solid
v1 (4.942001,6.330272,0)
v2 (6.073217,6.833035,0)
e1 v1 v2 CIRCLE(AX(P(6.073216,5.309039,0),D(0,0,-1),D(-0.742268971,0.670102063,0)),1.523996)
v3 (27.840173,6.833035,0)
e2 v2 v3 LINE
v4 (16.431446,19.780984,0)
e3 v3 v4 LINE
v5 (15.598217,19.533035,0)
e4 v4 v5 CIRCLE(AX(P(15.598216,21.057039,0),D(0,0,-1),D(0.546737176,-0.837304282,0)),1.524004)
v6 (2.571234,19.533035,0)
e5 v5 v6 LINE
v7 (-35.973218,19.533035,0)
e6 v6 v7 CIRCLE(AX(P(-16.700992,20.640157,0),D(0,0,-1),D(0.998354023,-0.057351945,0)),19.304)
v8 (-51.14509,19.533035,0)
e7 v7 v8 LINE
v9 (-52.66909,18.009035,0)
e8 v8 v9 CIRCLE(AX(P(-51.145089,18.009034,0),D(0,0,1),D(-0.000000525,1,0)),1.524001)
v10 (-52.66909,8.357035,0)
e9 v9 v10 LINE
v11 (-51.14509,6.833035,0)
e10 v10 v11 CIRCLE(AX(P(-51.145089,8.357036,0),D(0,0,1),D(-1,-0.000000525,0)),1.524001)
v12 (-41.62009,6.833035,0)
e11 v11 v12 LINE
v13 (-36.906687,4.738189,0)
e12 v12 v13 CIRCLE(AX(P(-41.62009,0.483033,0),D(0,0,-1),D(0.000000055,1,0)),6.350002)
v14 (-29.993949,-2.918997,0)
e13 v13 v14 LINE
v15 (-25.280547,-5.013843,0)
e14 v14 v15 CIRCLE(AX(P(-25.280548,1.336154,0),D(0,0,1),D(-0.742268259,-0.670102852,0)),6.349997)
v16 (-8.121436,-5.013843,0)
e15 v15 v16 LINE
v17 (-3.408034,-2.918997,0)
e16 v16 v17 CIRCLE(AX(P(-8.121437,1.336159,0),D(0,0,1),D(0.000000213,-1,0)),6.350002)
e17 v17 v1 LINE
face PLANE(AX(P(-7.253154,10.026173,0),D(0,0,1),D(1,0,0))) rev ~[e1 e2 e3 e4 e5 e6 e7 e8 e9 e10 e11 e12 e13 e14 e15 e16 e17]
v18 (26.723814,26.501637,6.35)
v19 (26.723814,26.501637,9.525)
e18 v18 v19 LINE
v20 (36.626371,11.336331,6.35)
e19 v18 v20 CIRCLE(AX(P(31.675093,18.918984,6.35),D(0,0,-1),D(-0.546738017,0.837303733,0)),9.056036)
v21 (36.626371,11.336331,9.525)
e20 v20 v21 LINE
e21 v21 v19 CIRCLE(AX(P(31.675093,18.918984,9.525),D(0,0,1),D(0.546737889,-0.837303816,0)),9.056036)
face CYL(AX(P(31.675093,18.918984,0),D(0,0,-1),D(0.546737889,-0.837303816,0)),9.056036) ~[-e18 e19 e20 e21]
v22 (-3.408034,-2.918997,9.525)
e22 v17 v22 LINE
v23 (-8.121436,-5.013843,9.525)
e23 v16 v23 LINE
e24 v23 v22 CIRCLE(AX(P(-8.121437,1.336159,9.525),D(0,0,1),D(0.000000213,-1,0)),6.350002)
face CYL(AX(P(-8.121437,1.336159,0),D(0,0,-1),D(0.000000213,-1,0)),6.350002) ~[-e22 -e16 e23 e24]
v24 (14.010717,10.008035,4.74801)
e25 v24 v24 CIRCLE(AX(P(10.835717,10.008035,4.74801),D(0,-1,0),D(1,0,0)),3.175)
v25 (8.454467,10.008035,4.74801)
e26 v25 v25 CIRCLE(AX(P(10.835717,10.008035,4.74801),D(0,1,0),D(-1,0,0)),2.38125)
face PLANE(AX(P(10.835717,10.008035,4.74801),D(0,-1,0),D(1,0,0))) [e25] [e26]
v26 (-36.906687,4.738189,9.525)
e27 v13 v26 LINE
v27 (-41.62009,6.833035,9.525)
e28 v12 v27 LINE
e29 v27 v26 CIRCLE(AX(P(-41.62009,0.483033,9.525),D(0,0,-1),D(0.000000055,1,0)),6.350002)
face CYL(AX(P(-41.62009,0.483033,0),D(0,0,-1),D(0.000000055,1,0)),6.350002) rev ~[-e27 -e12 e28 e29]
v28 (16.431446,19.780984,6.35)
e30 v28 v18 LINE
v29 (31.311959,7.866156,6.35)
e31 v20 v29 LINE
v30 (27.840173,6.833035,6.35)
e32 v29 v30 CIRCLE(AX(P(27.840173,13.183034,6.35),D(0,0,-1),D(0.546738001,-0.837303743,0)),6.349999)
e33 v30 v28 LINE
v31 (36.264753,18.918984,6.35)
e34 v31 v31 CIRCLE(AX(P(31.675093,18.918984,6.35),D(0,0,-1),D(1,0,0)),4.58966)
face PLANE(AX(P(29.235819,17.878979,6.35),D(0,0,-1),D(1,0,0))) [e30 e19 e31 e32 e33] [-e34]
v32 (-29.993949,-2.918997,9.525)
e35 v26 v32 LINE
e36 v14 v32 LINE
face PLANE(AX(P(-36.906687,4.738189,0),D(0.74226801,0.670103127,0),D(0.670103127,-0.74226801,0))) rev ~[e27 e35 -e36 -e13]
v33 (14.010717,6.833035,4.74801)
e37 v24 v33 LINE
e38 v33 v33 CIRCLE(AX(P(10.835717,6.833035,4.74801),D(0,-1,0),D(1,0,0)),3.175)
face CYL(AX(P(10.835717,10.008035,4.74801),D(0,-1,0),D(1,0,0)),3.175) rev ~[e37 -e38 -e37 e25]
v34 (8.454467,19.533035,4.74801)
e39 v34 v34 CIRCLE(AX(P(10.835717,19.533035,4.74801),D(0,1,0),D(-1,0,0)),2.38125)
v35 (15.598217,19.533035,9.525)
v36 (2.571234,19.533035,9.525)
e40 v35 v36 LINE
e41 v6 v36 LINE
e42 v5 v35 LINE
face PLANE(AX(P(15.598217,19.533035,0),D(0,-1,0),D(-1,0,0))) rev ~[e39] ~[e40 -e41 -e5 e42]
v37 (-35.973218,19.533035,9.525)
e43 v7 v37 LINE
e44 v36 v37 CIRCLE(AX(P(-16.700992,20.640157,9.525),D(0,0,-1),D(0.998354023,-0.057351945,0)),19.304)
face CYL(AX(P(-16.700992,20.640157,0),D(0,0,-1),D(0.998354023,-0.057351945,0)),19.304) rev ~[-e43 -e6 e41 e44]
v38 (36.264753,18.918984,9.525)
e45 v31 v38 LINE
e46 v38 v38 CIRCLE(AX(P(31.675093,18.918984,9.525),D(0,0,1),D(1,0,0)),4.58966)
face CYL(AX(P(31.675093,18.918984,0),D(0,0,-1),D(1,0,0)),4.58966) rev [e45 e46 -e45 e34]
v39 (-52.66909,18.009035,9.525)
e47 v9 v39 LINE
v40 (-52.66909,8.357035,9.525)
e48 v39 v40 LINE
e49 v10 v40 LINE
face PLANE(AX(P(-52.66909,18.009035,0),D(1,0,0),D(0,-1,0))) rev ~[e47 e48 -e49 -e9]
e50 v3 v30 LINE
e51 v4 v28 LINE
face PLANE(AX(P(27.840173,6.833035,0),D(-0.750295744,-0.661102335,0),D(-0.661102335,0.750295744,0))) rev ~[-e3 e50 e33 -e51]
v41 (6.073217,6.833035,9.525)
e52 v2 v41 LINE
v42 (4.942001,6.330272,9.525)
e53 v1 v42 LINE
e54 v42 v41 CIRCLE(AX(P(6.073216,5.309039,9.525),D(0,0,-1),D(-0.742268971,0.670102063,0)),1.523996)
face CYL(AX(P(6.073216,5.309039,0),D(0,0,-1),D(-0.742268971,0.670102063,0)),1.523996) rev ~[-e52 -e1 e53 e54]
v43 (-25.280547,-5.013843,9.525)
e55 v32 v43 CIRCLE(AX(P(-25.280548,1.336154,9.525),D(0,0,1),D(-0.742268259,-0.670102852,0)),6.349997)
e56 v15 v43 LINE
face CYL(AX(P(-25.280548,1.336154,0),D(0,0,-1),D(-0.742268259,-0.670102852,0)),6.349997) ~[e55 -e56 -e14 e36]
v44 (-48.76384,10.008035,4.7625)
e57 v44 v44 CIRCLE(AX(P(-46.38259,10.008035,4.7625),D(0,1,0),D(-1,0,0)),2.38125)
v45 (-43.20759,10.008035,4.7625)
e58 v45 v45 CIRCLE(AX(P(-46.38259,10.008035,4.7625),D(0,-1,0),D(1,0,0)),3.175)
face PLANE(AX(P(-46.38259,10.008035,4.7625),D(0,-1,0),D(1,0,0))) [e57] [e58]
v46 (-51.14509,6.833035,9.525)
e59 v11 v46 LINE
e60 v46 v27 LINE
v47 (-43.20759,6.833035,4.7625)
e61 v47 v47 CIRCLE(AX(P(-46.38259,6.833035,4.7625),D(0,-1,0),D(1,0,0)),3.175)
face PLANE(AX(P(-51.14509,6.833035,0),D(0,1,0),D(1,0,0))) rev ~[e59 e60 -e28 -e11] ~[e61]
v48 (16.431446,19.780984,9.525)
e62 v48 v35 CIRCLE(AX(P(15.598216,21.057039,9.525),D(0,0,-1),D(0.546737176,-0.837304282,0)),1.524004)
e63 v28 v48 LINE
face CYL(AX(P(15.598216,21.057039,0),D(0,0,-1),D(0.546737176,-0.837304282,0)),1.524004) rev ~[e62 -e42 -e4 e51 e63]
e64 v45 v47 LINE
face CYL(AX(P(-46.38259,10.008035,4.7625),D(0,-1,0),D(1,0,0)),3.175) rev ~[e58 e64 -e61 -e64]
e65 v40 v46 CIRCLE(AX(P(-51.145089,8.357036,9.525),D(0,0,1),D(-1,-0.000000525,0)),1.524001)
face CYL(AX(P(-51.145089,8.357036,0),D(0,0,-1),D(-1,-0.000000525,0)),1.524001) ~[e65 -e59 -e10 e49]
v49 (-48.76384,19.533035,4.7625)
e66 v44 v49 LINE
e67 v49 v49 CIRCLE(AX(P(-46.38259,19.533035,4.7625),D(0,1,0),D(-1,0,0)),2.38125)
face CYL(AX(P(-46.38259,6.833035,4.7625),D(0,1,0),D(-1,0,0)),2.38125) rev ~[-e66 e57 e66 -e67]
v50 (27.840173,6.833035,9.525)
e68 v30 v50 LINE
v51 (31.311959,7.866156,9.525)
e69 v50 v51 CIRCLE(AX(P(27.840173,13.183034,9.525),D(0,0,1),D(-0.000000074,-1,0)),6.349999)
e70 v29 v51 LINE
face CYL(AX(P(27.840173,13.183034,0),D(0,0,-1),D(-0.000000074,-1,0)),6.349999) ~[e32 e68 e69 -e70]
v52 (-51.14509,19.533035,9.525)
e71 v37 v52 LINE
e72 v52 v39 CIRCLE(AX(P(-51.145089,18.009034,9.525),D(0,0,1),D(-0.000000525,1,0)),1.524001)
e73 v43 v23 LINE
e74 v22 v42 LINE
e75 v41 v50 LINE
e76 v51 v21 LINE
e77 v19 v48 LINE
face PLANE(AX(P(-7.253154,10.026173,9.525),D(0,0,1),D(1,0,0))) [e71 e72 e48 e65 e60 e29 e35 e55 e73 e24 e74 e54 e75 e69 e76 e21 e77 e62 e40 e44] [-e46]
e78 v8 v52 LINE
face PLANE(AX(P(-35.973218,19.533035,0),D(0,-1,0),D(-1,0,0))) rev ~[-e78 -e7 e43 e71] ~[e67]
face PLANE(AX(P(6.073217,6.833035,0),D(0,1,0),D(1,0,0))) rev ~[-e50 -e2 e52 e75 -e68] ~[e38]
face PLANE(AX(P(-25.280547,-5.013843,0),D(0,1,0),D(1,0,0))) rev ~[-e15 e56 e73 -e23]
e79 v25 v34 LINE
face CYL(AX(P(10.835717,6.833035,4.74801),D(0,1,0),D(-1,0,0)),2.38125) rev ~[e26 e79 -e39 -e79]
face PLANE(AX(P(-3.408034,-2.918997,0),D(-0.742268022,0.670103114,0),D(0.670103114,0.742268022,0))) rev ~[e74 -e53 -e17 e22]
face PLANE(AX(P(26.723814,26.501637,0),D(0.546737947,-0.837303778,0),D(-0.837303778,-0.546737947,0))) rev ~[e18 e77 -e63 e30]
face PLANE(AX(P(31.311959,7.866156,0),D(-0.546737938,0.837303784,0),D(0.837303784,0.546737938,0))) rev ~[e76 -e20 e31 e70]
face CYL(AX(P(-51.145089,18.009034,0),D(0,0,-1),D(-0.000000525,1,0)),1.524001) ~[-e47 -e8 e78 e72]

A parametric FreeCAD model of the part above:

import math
import FreeCAD as App
import Part
import Sketcher
from FreeCAD import Vector
Q = App.Units.Quantity

doc = App.newDocument("Part")
params = doc.addObject("Spreadsheet::Sheet", "Params")
for row, (alias, value) in enumerate([
    ("sketch1_radius", "0.0600002 in"),
    ("sketch1_radius2", "0.76 in"),
    ("sketch1_radius3", "0.06 in"),
    ("sketch1_radius4", "0.2500001 in"),
    ("sketch1_radius5", "0.2499999 in"),
    ("pad1_length", "0.375 in"),
    ("sketch2_radius", "0.2499999 in"),
    ("pocket1_length", "0.25 in"),
    ("sketch3_diameter", "0.1875 in"),
    ("hole_diameter", "0.1875 in"),
    ("hole_depth", "0.5 in"),
    ("hole_cbore_diameter", "0.25 in"),
    ("hole_cbore_depth", "0.125 in"),
], start=1):
    params.set(f"A{row}", alias)
    params.set(f"B{row}", "=" + value)
    params.setAlias(f"B{row}", alias)

body = doc.addObject("PartDesign::Body", "Body")

# Sketch on XY plane
sketch1 = body.newObject("Sketcher::SketchObject", "Sketch")
sketch1.AttachmentSupport = (doc.getObject("XY_Plane"), [""])
sketch1.MapMode = "FlatFace"
sketch1.addGeometry(Part.LineSegment(Vector(31.311959, 7.866156, 0), Vector(36.626371, 11.336331, 0)), False)
sketch1.addGeometry(Part.ArcOfCircle(Part.Circle(Vector(31.675093, 18.918984, 0), Vector(0, 0, 1), 9.056036), math.radians(-56.856495), math.radians(123.143514)), False)
sketch1.addGeometry(Part.LineSegment(Vector(26.723814, 26.501637, 0), Vector(16.431446, 19.780984, 0)), False)
sketch1.addGeometry(Part.ArcOfCircle(Part.Circle(Vector(15.598216, 21.057039, 0), Vector(0, 0, 1), 1.524004), math.radians(-89.999966), math.radians(-56.856544)), False)
sketch1.addGeometry(Part.LineSegment(Vector(15.598217, 19.533035, 0), Vector(2.571234, 19.533035, 0)), False)
sketch1.addGeometry(Part.ArcOfCircle(Part.Circle(Vector(-16.700992, 20.640157, 0), Vector(0, 0, 1), 19.304), math.radians(-176.712171), math.radians(-3.287829)), False)
sketch1.addGeometry(Part.LineSegment(Vector(-35.973218, 19.533035, 0), Vector(-51.14509, 19.533035, 0)), False)
sketch1.addGeometry(Part.ArcOfCircle(Part.Circle(Vector(-51.145089, 18.009034, 0), Vector(0, 0, 1), 1.524001), math.radians(90.00003), math.radians(179.99997)), False)
sketch1.addGeometry(Part.LineSegment(Vector(-52.66909, 18.009035, 0), Vector(-52.66909, 8.357035, 0)), False)
sketch1.addGeometry(Part.ArcOfCircle(Part.Circle(Vector(-51.145089, 8.357036, 0), Vector(0, 0, 1), 1.524001), math.radians(-179.99997), math.radians(-90.00003)), False)
sketch1.addGeometry(Part.LineSegment(Vector(-51.14509, 6.833035, 0), Vector(-41.62009, 6.833035, 0)), False)
sketch1.addGeometry(Part.ArcOfCircle(Part.Circle(Vector(-41.62009, 0.483033, 0), Vector(0, 0, 1), 6.350002), math.radians(42.075021), math.radians(89.999997)), False)
sketch1.addGeometry(Part.LineSegment(Vector(-36.906687, 4.738189, 0), Vector(-29.993949, -2.918997, 0)), False)
sketch1.addGeometry(Part.ArcOfCircle(Part.Circle(Vector(-25.280548, 1.336154, 0), Vector(0, 0, 1), 6.349997), math.radians(-137.924997), math.radians(-89.999995)), False)
sketch1.addGeometry(Part.LineSegment(Vector(-25.280547, -5.013843, 0), Vector(-8.121436, -5.013843, 0)), False)
sketch1.addGeometry(Part.ArcOfCircle(Part.Circle(Vector(-8.121437, 1.336159, 0), Vector(0, 0, 1), 6.350002), math.radians(-89.999988), math.radians(-42.075021)), False)
sketch1.addGeometry(Part.LineSegment(Vector(-3.408034, -2.918997, 0), Vector(4.942001, 6.330272, 0)), False)
sketch1.addGeometry(Part.ArcOfCircle(Part.Circle(Vector(6.073216, 5.309039, 0), Vector(0, 0, 1), 1.523996), math.radians(89.999949), math.radians(137.925057)), False)
sketch1.addGeometry(Part.LineSegment(Vector(6.073217, 6.833035, 0), Vector(27.840173, 6.833035, 0)), False)
sketch1.addGeometry(Part.ArcOfCircle(Part.Circle(Vector(27.840173, 13.183034, 0), Vector(0, 0, 1), 6.349999), math.radians(-90.000004), math.radians(-56.856487)), False)
sketch1.addGeometry(Part.Circle(Vector(31.675093, 18.918984, 0), Vector(0, 0, 1), 4.58966), False)
sketch1.addConstraint(Sketcher.Constraint("Tangent", 0, 2, 1, 1))
sketch1.addConstraint(Sketcher.Constraint("Tangent", 1, 2, 2, 1))
sketch1.addConstraint(Sketcher.Constraint("Tangent", 2, 2, 3, 2))
sketch1.addConstraint(Sketcher.Constraint("Tangent", 3, 1, 4, 1))
sketch1.addConstraint(Sketcher.Constraint("Coincident", 4, 2, 5, 2))
sketch1.addConstraint(Sketcher.Constraint("Coincident", 5, 1, 6, 1))
sketch1.addConstraint(Sketcher.Constraint("Tangent", 6, 2, 7, 1))
sketch1.addConstraint(Sketcher.Constraint("Tangent", 7, 2, 8, 1))
sketch1.addConstraint(Sketcher.Constraint("Tangent", 8, 2, 9, 1))
sketch1.addConstraint(Sketcher.Constraint("Tangent", 9, 2, 10, 1))
sketch1.addConstraint(Sketcher.Constraint("Tangent", 10, 2, 11, 2))
sketch1.addConstraint(Sketcher.Constraint("Tangent", 11, 1, 12, 1))
sketch1.addConstraint(Sketcher.Constraint("Tangent", 12, 2, 13, 1))
sketch1.addConstraint(Sketcher.Constraint("Tangent", 13, 2, 14, 1))
sketch1.addConstraint(Sketcher.Constraint("Tangent", 14, 2, 15, 1))
sketch1.addConstraint(Sketcher.Constraint("Tangent", 15, 2, 16, 1))
sketch1.addConstraint(Sketcher.Constraint("Tangent", 16, 2, 17, 2))
sketch1.addConstraint(Sketcher.Constraint("Tangent", 17, 1, 18, 1))
sketch1.addConstraint(Sketcher.Constraint("Tangent", 18, 2, 19, 1))
sketch1.addConstraint(Sketcher.Constraint("Tangent", 19, 2, 0, 1))
sketch1.addConstraint(Sketcher.Constraint("Horizontal", 4))
sketch1.addConstraint(Sketcher.Constraint("Horizontal", 6))
sketch1.addConstraint(Sketcher.Constraint("Vertical", 8))
sketch1.addConstraint(Sketcher.Constraint("Horizontal", 10))
sketch1.addConstraint(Sketcher.Constraint("Horizontal", 14))
sketch1.addConstraint(Sketcher.Constraint("Horizontal", 18))
sketch1.addConstraint(Sketcher.Constraint("Coincident", 20, 3, 1, 3))
sketch1.addConstraint(Sketcher.Constraint("Equal", 7, 9))
sketch1.addConstraint(Sketcher.Constraint("Equal", 11, 15))
sketch1.addConstraint(Sketcher.Constraint("Equal", 13, 19))
sketch1.addConstraint(Sketcher.Constraint("Parallel", 0, 2))
sketch1.addConstraint(Sketcher.Constraint("Horizontal", 4, 2, 5, 1))
sketch1.addConstraint(Sketcher.Constraint("Horizontal", 12, 2, 15, 2))
sketch1.addConstraint(Sketcher.Constraint("Horizontal", 10, 2, 17, 1))
sketch1.addConstraint(Sketcher.Constraint("Radius", 3, Q("0.0600002 in")))
sketch1.addConstraint(Sketcher.Constraint("Radius", 5, Q("0.76 in")))
sketch1.addConstraint(Sketcher.Constraint("Radius", 7, Q("0.06 in")))
sketch1.addConstraint(Sketcher.Constraint("Radius", 11, Q("0.2500001 in")))
sketch1.addConstraint(Sketcher.Constraint("Radius", 13, Q("0.2499999 in")))
sketch1.addConstraint(Sketcher.Constraint("Radius", 17, Q("0.0599998 in")))
sketch1.addConstraint(Sketcher.Constraint("DistanceY", 8, 2, 8, 1, Q("0.38 in")))
sketch1.addConstraint(Sketcher.Constraint("DistanceX", 10, 1, 10, 2, Q("0.375 in")))
sketch1.addConstraint(Sketcher.Constraint("DistanceY", 13, 3, 5, 3, Q("0.7600001 in")))
sketch1.addConstraint(Sketcher.Constraint("Diameter", 20, Q("9.17932 mm")))
sketch1.addConstraint(Sketcher.Constraint("DistanceX", 17, 3, 3, 3, Q("0.375 in")))
sketch1.addConstraint(Sketcher.Constraint("Radius", 1, Q("9.056036 mm")))
sketch1.addConstraint(Sketcher.Constraint("DistanceX", 13, 3, 3, 3, Q("1.6094001 in")))
sketch1.addConstraint(Sketcher.Constraint("DistanceX", 14, 1, 14, 2, Q("17.159111 mm")))
sketch1.addConstraint(Sketcher.Constraint("DistanceX", -1, 1, 16, 2, Q("4.942001 mm")))
sketch1.addConstraint(Sketcher.Constraint("DistanceX", 11, 3, 5, 3, Q("24.919098 mm")))
sketch1.addConstraint(Sketcher.Constraint("DistanceY", 20, 3, 2, 2, Q("0.862 mm")))
sketch1.addConstraint(Sketcher.Constraint("DistanceY", 3, 1, 1, 2, Q("6.968602 mm")))
sketch1.addConstraint(Sketcher.Constraint("DistanceX", 12, 2, 13, 3, Q("4.713401 mm")))
sketch1.addConstraint(Sketcher.Constraint("DistanceY", -1, 1, 3, 3, Q("21.057039 mm")))
sketch1.setExpression("Constraints[34]", "Params.sketch1_radius")
sketch1.setExpression("Constraints[35]", "Params.sketch1_radius2")
sketch1.setExpression("Constraints[36]", "Params.sketch1_radius3")
sketch1.setExpression("Constraints[37]", "Params.sketch1_radius4")
sketch1.setExpression("Constraints[38]", "Params.sketch1_radius5")
pad1 = body.newObject("PartDesign::Pad", "Pad")
pad1.Profile = sketch1
pad1.setExpression("Length", "Params.pad1_length")

# Sketch on XY plane
sketch2 = body.newObject("Sketcher::SketchObject", "Sketch001")
sketch2.AttachmentSupport = (doc.getObject("XY_Plane"), [""])
sketch2.MapMode = "FlatFace"
sketch2.addGeometry(Part.LineSegment(Vector(27.840173, 6.833035, 0), Vector(16.431446, 19.780984, 0)), False)
sketch2.addGeometry(Part.LineSegment(Vector(16.431446, 19.780984, 0), Vector(26.723814, 26.501637, 0)), False)
sketch2.addGeometry(Part.ArcOfCircle(Part.Circle(Vector(31.675093, 18.918984, 0), Vector(0, 0, 1), 9.056036), math.radians(-56.856495), math.radians(123.143514)), False)
sketch2.addGeometry(Part.LineSegment(Vector(36.626371, 11.336331, 0), Vector(31.311959, 7.866156, 0)), False)
sketch2.addGeometry(Part.ArcOfCircle(Part.Circle(Vector(27.840173, 13.183034, 0), Vector(0, 0, 1), 6.349999), math.radians(-90.000004), math.radians(-56.856487)), False)
sketch2.addGeometry(Part.Circle(Vector(31.675093, 18.918984, 0), Vector(0, 0, 1), 4.58966), False)
sketch2.addConstraint(Sketcher.Constraint("Coincident", 0, 2, 1, 1))
sketch2.addConstraint(Sketcher.Constraint("Tangent", 1, 2, 2, 2))
sketch2.addConstraint(Sketcher.Constraint("Tangent", 2, 1, 3, 1))
sketch2.addConstraint(Sketcher.Constraint("Tangent", 3, 2, 4, 2))
sketch2.addConstraint(Sketcher.Constraint("Coincident", 4, 1, 0, 1))
sketch2.addConstraint(Sketcher.Constraint("Coincident", 5, 3, 2, 3))
sketch2.addConstraint(Sketcher.Constraint("Parallel", 1, 3))
sketch2.addConstraint(Sketcher.Constraint("Radius", 4, Q("0.2499999 in")))
sketch2.addConstraint(Sketcher.Constraint("Diameter", 5, Q("9.17932 mm")))
sketch2.addConstraint(Sketcher.Constraint("Radius", 2, Q("9.056036 mm")))
sketch2.addConstraint(Sketcher.Constraint("DistanceY", 5, 3, 0, 2, Q("0.862 mm")))
sketch2.addConstraint(Sketcher.Constraint("DistanceX", -1, 1, 2, 1, Q("36.626371 mm")))
sketch2.addConstraint(Sketcher.Constraint("DistanceY", -1, 1, 2, 1, Q("11.336331 mm")))
sketch2.addConstraint(Sketcher.Constraint("DistanceX", -1, 1, 3, 2, Q("31.311959 mm")))
sketch2.addConstraint(Sketcher.Constraint("DistanceX", 4, 3, 2, 3, Q("3.83492 mm")))
sketch2.addConstraint(Sketcher.Constraint("DistanceX", 4, 1, 5, 3, Q("3.83492 mm")))
sketch2.setExpression("Constraints[7]", "Params.sketch2_radius")
pocket1 = body.newObject("PartDesign::Pocket", "Pocket")
pocket1.Profile = sketch2
pocket1.setExpression("Length", "Params.pocket1_length")
pocket1.Reversed = True

# Sketch on XZ plane
sketch3 = body.newObject("Sketcher::SketchObject", "Sketch002")
sketch3.AttachmentSupport = (doc.getObject("XZ_Plane"), [""])
sketch3.MapMode = "FlatFace"
sketch3.AttachmentOffset = App.Placement(Vector(0, 0, -6.833035), App.Rotation())
sketch3.addGeometry(Part.Circle(Vector(-46.38259, 4.7625, 0), Vector(0, 0, 1), 2.38125), False)
sketch3.addGeometry(Part.Circle(Vector(10.835717, 4.74801, 0), Vector(0, 0, 1), 2.38125), False)
sketch3.addConstraint(Sketcher.Constraint("Equal", 0, 1))
sketch3.addConstraint(Sketcher.Constraint("Diameter", 0, Q("0.1875 in")))
sketch3.addConstraint(Sketcher.Constraint("DistanceY", -1, 1, 0, 3, Q("0.1875 in")))
sketch3.addConstraint(Sketcher.Constraint("DistanceX", 0, 3, -1, 1, Q("46.38259 mm")))
sketch3.addConstraint(Sketcher.Constraint("DistanceY", -1, 1, 1, 3, Q("4.74801 mm")))
sketch3.addConstraint(Sketcher.Constraint("DistanceX", -1, 1, 1, 3, Q("10.835717 mm")))
sketch3.setExpression("Constraints[1]", "Params.sketch3_diameter")
doc.recompute()
hole = body.newObject("PartDesign::Hole", "Hole")
hole.Profile = sketch3
hole.ThreadType = "None"
hole.setExpression("Diameter", "Params.hole_diameter")
hole.DepthType = "Dimension"
hole.setExpression("Depth", "Params.hole_depth")
hole.DrillPoint = "Flat"
hole.HoleCutType = "Counterbore"
hole.setExpression("HoleCutDiameter", "Params.hole_cbore_diameter")
hole.setExpression("HoleCutDepth", "Params.hole_cbore_depth")

doc.recompute()
